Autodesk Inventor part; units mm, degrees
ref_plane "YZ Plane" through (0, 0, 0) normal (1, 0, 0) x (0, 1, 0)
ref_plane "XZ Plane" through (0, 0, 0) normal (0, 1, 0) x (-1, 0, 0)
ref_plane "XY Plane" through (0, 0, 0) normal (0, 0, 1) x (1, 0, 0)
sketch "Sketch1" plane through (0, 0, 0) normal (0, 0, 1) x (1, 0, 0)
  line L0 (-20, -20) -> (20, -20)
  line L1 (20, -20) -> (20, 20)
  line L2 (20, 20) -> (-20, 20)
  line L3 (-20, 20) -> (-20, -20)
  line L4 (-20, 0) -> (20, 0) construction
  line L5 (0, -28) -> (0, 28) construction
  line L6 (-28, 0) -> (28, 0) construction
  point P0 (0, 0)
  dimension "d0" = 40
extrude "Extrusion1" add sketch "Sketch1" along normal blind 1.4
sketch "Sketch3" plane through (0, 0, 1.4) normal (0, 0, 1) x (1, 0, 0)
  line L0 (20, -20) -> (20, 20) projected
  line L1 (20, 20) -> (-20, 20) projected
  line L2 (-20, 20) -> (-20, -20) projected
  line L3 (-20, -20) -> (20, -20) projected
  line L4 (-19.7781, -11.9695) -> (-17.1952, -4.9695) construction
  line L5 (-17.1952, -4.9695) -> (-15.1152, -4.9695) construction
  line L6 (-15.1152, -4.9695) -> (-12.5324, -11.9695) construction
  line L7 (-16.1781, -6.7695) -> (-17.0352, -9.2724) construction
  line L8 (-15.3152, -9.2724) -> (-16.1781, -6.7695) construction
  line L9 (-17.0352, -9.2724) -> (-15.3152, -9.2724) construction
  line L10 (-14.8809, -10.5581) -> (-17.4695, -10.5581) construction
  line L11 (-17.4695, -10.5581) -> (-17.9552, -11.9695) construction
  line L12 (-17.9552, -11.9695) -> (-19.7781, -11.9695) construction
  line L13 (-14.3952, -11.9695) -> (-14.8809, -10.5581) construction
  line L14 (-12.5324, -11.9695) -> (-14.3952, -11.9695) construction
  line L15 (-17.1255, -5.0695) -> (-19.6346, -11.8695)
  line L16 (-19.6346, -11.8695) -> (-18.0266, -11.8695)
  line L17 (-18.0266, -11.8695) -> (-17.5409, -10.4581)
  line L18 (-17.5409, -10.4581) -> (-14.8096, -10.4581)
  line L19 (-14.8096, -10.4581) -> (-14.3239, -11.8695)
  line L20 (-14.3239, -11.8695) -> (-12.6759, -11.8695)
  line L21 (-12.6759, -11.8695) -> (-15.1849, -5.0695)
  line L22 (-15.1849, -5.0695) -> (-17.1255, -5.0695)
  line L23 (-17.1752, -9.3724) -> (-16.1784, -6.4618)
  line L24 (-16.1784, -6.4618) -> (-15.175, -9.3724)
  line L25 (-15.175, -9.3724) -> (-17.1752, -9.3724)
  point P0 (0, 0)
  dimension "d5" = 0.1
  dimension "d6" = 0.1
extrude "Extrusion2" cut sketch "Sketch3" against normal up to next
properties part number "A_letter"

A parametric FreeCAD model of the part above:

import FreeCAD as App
import Part
import Sketcher

V = App.Vector
Q = App.Units.Quantity

doc = App.newDocument("Part")
body = doc.addObject("PartDesign::Body", "Body")

# Sketch on XY plane
sketch1 = body.newObject("Sketcher::SketchObject", "Sketch")
sketch1.AttachmentSupport = (doc.getObject("XY_Plane"), [""])
sketch1.MapMode = "FlatFace"
sketch1.addGeometry([
    Part.LineSegment(V(-20, 20, 0), V(-20, -20, 0)),
    Part.LineSegment(V(-20, -20, 0), V(20, -20, 0)),
    Part.LineSegment(V(20, -20, 0), V(20, 20, 0)),
    Part.LineSegment(V(20, 20, 0), V(-20, 20, 0)),
], False)
sketch1.addConstraint([
    Sketcher.Constraint("Coincident", 0, 2, 1, 1),
    Sketcher.Constraint("Coincident", 1, 2, 2, 1),
    Sketcher.Constraint("Coincident", 2, 2, 3, 1),
    Sketcher.Constraint("Coincident", 3, 2, 0, 1),
    Sketcher.Constraint("Vertical", 0),
    Sketcher.Constraint("Horizontal", 1),
    Sketcher.Constraint("Vertical", 2),
    Sketcher.Constraint("Horizontal", 3),
    Sketcher.Constraint("Symmetric", 0, 2, 2, 2, -1, 1),
    Sketcher.Constraint("Equal", 3, 0),
    Sketcher.Constraint("DistanceX", 1, 1, 1, 2, Q("40 mm")),
])
pad1 = body.newObject("PartDesign::Pad", "Pad")
pad1.Profile = sketch1
pad1.Length = 1.4

# Sketch on XY plane
sketch2 = body.newObject("Sketcher::SketchObject", "Sketch001")
sketch2.AttachmentSupport = (doc.getObject("XY_Plane"), [""])
sketch2.MapMode = "FlatFace"
sketch2.AttachmentOffset = App.Placement(V(0, 0, 1.4), App.Rotation())
sketch2.addGeometry([
    Part.LineSegment(V(-20, -20, 0), V(20, -20, 0)),  # 0
    Part.LineSegment(V(20, -20, 0), V(20, 20, 0)),  # 1
    Part.LineSegment(V(20, 20, 0), V(-20, 20, 0)),  # 2
    Part.LineSegment(V(-20, 20, 0), V(-20, -20, 0)),  # 3
    Part.LineSegment(V(-19.6346, -11.8695, 0), V(-17.1255, -5.0695, 0)),  # 4
    Part.LineSegment(V(-17.1255, -5.0695, 0), V(-15.1849, -5.0695, 0)),  # 5
    Part.LineSegment(V(-15.1849, -5.0695, 0), V(-12.6759, -11.8695, 0)),  # 6
    Part.LineSegment(V(-12.6759, -11.8695, 0), V(-14.3239, -11.8695, 0)),  # 7
    Part.LineSegment(V(-14.3239, -11.8695, 0), V(-14.8096, -10.4581, 0)),  # 8
    Part.LineSegment(V(-14.8096, -10.4581, 0), V(-17.5409, -10.4581, 0)),  # 9
    Part.LineSegment(V(-17.5409, -10.4581, 0), V(-18.0266, -11.8695, 0)),  # 10
    Part.LineSegment(V(-18.0266, -11.8695, 0), V(-19.6346, -11.8695, 0)),  # 11
    Part.LineSegment(V(-16.1784, -6.4618, 0), V(-17.1752, -9.3724, 0)),  # 12
    Part.LineSegment(V(-17.1752, -9.3724, 0), V(-15.175, -9.3724, 0)),  # 13
    Part.LineSegment(V(-15.175, -9.3724, 0), V(-16.1784, -6.4618, 0)),  # 14
], False)
sketch2.addConstraint([
    Sketcher.Constraint("Coincident", 0, 2, 1, 1),
    Sketcher.Constraint("Coincident", 1, 2, 2, 1),
    Sketcher.Constraint("Coincident", 2, 2, 3, 1),
    Sketcher.Constraint("Coincident", 3, 2, 0, 1),
    Sketcher.Constraint("Coincident", 4, 2, 5, 1),
    Sketcher.Constraint("Coincident", 5, 2, 6, 1),
    Sketcher.Constraint("Coincident", 6, 2, 7, 1),
    Sketcher.Constraint("Coincident", 7, 2, 8, 1),
    Sketcher.Constraint("Coincident", 8, 2, 9, 1),
    Sketcher.Constraint("Coincident", 9, 2, 10, 1),
    Sketcher.Constraint("Coincident", 10, 2, 11, 1),
    Sketcher.Constraint("Coincident", 11, 2, 4, 1),
    Sketcher.Constraint("Coincident", 12, 2, 13, 1),
    Sketcher.Constraint("Coincident", 13, 2, 14, 1),
    Sketcher.Constraint("Coincident", 14, 2, 12, 1),
    Sketcher.Constraint("Horizontal", 0),
    Sketcher.Constraint("Vertical", 1),
    Sketcher.Constraint("Horizontal", 2),
    Sketcher.Constraint("Vertical", 3),
    Sketcher.Constraint("Horizontal", 5),
    Sketcher.Constraint("Horizontal", 7),
    Sketcher.Constraint("Horizontal", 9),
    Sketcher.Constraint("Horizontal", 11),
    Sketcher.Constraint("Horizontal", 13),
    Sketcher.Constraint("Symmetric", 0, 2, 2, 2, -1, 1),
    Sketcher.Constraint("Horizontal", 7, 2, 10, 2),
    Sketcher.Constraint("Equal", 2, 1),
    Sketcher.Constraint("Equal", 4, 6),
    Sketcher.Constraint("Equal", 8, 10),
    Sketcher.Constraint("DistanceX", 0, 1, 0, 2, Q("40 mm")),
    Sketcher.Constraint("Angle", 8, Q("108.9897 deg")),
    Sketcher.Constraint("Angle", 14, Q("109.021 deg")),
    Sketcher.Constraint("DistanceY", 6, 2, 5, 2, Q("6.8 mm")),
    Sketcher.Constraint("DistanceX", 7, 2, 7, 1, Q("1.648 mm")),
    Sketcher.Constraint("DistanceX", 11, 2, 11, 1, Q("1.608 mm")),
    Sketcher.Constraint("Distance", 6, Q("7.248 mm")),
    Sketcher.Constraint("DistanceX", 5, 1, 5, 2, Q("1.9406 mm")),
    Sketcher.Constraint("DistanceX", 9, 2, 9, 1, Q("2.7313 mm")),
    Sketcher.Constraint("DistanceX", 13, 1, 13, 2, Q("2.0002 mm")),
    Sketcher.Constraint("DistanceX", 5, 2, -1, 1, Q("15.185 mm")),
    Sketcher.Constraint("DistanceY", 8, 2, -1, 1, Q("10.458 mm")),
    Sketcher.Constraint("DistanceX", 13, 2, -1, 1, Q("15.175 mm")),
    Sketcher.Constraint("DistanceY", 10, 2, 12, 2, Q("2.497 mm")),
    Sketcher.Constraint("DistanceX", 4, 2, 14, 2, Q("0.947 mm")),
])
pocket1 = body.newObject("PartDesign::Pocket", "Pocket")
pocket1.Profile = sketch2
pocket1.Type = "UpToFirst"

doc.recompute()
